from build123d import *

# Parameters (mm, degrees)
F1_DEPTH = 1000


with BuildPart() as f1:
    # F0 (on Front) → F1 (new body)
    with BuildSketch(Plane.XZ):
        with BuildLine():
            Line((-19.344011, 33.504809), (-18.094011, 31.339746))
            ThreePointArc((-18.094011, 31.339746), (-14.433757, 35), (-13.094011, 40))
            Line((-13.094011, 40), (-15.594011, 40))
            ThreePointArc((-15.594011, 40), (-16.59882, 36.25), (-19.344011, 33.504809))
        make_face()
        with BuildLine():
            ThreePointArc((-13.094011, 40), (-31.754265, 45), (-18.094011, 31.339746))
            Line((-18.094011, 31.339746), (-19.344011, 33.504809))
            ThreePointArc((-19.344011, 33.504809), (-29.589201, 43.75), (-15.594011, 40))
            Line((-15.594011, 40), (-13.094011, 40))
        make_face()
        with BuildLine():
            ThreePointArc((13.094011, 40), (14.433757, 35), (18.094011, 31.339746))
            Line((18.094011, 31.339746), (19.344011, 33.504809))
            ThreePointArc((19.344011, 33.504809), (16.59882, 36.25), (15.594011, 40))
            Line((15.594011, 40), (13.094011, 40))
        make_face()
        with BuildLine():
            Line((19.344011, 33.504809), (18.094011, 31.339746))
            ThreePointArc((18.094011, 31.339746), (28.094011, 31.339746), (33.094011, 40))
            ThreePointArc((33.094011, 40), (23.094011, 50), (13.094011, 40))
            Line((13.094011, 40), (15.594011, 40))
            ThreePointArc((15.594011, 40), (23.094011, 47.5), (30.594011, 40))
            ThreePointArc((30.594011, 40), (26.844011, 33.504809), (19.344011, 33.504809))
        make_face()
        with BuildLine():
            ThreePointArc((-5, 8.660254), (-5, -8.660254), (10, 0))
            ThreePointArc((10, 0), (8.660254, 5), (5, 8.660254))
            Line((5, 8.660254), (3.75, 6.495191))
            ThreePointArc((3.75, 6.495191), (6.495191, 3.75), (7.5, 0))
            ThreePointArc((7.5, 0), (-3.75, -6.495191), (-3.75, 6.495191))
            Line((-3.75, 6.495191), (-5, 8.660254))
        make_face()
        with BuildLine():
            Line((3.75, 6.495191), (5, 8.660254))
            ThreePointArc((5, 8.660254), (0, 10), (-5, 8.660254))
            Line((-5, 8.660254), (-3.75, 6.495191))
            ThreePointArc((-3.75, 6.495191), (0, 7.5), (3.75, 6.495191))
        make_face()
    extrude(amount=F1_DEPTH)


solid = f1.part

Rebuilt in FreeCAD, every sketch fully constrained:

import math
import FreeCAD as App
import Part
import Sketcher

V = App.Vector

doc = App.newDocument("Part")
body = doc.addObject("PartDesign::Body", "Body")
body.AllowCompound = True

# Sketch on XZ plane
sketch1 = body.newObject("Sketcher::SketchObject", "Sketch")
sketch1.AttachmentSupport = (doc.getObject("XZ_Plane"), [""])
sketch1.MapMode = "FlatFace"
sketch1.addGeometry(Part.ArcOfCircle(Part.Circle(V(-23, 40, 0), V(0, 0, 1), 10), math.radians(-60), math.radians(0)), False)
sketch1.addGeometry(Part.ArcOfCircle(Part.Circle(V(-23, 40, 0), V(0, 0, 1), 10), math.radians(0), math.radians(300)), False)
sketch1.addGeometry(Part.ArcOfCircle(Part.Circle(V(-23, 40, 0), V(0, 0, 1), 7), math.radians(-60), math.radians(0)), False)
sketch1.addGeometry(Part.ArcOfCircle(Part.Circle(V(-23, 40, 0), V(0, 0, 1), 7), math.radians(0), math.radians(300)), False)
sketch1.addGeometry(Part.ArcOfCircle(Part.Circle(V(23, 40, 0), V(0, 0, 1), 10), math.radians(-180), math.radians(-120)), False)
sketch1.addGeometry(Part.ArcOfCircle(Part.Circle(V(23, 40, 0), V(0, 0, 1), 10), math.radians(-120), math.radians(0)), False)
sketch1.addGeometry(Part.ArcOfCircle(Part.Circle(V(23, 40, 0), V(0, 0, 1), 10), math.radians(0), math.radians(180)), False)
sketch1.addGeometry(Part.ArcOfCircle(Part.Circle(V(23, 40, 0), V(0, 0, 1), 7), math.radians(180), math.radians(240)), False)
sketch1.addGeometry(Part.ArcOfCircle(Part.Circle(V(23, 40, 0), V(0, 0, 1), 8), math.radians(0), math.radians(180)), False)
sketch1.addGeometry(Part.ArcOfCircle(Part.Circle(V(23, 40, 0), V(0, 0, 1), 8), math.radians(-120), math.radians(0)), False)
sketch1.addGeometry(Part.ArcOfCircle(Part.Circle(V(0, 0, 0), V(0, 0, 1), 10), math.radians(120), math.radians(360)), False)
sketch1.addGeometry(Part.ArcOfCircle(Part.Circle(V(0, 0, 0), V(0, 0, 1), 10), math.radians(0), math.radians(60)), False)
sketch1.addGeometry(Part.ArcOfCircle(Part.Circle(V(0, 0, 0), V(0, 0, 1), 10), math.radians(60), math.radians(120)), False)
sketch1.addGeometry(Part.ArcOfCircle(Part.Circle(V(0, 0, 0), V(0, 0, 1), 7), math.radians(0), math.radians(60)), False)
sketch1.addGeometry(Part.ArcOfCircle(Part.Circle(V(0, 0, 0), V(0, 0, 1), 8), math.radians(120), math.radians(360)), False)
sketch1.addGeometry(Part.ArcOfCircle(Part.Circle(V(0, 0, 0), V(0, 0, 1), 8), math.radians(60), math.radians(120)), False)
sketch1.addConstraint(Sketcher.Constraint("Tangent", 0, 1, 1, 2))
sketch1.addConstraint(Sketcher.Constraint("Coincident", 1, 1, 0, 2))
sketch1.addConstraint(Sketcher.Constraint("Tangent", 2, 1, 3, 2))
sketch1.addConstraint(Sketcher.Constraint("Coincident", 3, 1, 2, 2))
sketch1.addConstraint(Sketcher.Constraint("Tangent", 4, 2, 5, 1))
sketch1.addConstraint(Sketcher.Constraint("Tangent", 5, 2, 6, 1))
sketch1.addConstraint(Sketcher.Constraint("Tangent", 6, 2, 4, 1))
sketch1.addConstraint(Sketcher.Constraint("Tangent", 7, 1, 8, 2))
sketch1.addConstraint(Sketcher.Constraint("Tangent", 8, 1, 9, 2))
sketch1.addConstraint(Sketcher.Constraint("Tangent", 9, 1, 7, 2))
sketch1.addConstraint(Sketcher.Constraint("Tangent", 10, 2, 11, 1))
sketch1.addConstraint(Sketcher.Constraint("Tangent", 11, 2, 12, 1))
sketch1.addConstraint(Sketcher.Constraint("Tangent", 12, 2, 10, 1))
sketch1.addConstraint(Sketcher.Constraint("Tangent", 13, 1, 14, 2))
sketch1.addConstraint(Sketcher.Constraint("Tangent", 14, 1, 15, 2))
sketch1.addConstraint(Sketcher.Constraint("Tangent", 15, 1, 13, 2))
sketch1.addConstraint(Sketcher.Constraint("Coincident", 10, 3, -1, 1))
sketch1.addConstraint(Sketcher.Constraint("Coincident", 13, 3, -1, 1))
sketch1.addConstraint(Sketcher.Constraint("Coincident", 2, 3, 0, 3))
sketch1.addConstraint(Sketcher.Constraint("Coincident", 7, 3, 4, 3))
sketch1.addConstraint(Sketcher.Constraint("Equal", 1, 4))
sketch1.addConstraint(Sketcher.Constraint("Equal", 3, 7))
sketch1.addConstraint(Sketcher.Constraint("Equal", 6, 10))
sketch1.addConstraint(Sketcher.Constraint("Equal", 9, 13))
sketch1.addConstraint(Sketcher.Constraint("Symmetric", 0, 3, 4, 3, -2))
sketch1.addConstraint(Sketcher.Constraint("PointOnObject", 10, 2, -1))
sketch1.addConstraint(Sketcher.Constraint("PointOnObject", 13, 1, -1))
sketch1.addConstraint(Sketcher.Constraint("Horizontal", 9, 3, 1, 1))
sketch1.addConstraint(Sketcher.Constraint("Horizontal", 1, 1, 3, 1))
sketch1.addConstraint(Sketcher.Constraint("Horizontal", 0, 1, 4, 2))
sketch1.addConstraint(Sketcher.Constraint("Horizontal", 3, 1, 5, 2))
sketch1.addConstraint(Sketcher.Constraint("Horizontal", 5, 2, 6, 2))
sketch1.addConstraint(Sketcher.Constraint("Horizontal", 6, 2, 7, 1))
sketch1.addConstraint(Sketcher.Constraint("Horizontal", 7, 1, 8, 1))
sketch1.addConstraint(Sketcher.Constraint("Horizontal", 2, 1, 9, 1))
sketch1.addConstraint(Sketcher.Constraint("Horizontal", 11, 2, 12, 2))
sketch1.addConstraint(Sketcher.Constraint("Horizontal", 14, 1, 15, 1))
sketch1.addConstraint(Sketcher.Constraint("Radius", 0, 10.0))
sketch1.addConstraint(Sketcher.Constraint("Radius", 2, 7.499999))
sketch1.addConstraint(Sketcher.Constraint("DistanceY", -1, 1, 0, 3, 40.0))
sketch1.addConstraint(Sketcher.Constraint("DistanceX", -1, 1, 11, 2, 5.0))
sketch1.addConstraint(Sketcher.Constraint("DistanceX", 2, 3, 0, 1, 4.999999))
sketch1.addConstraint(Sketcher.Constraint("DistanceX", 14, 1, 15, 1, 7.5))
sketch1.addConstraint(Sketcher.Constraint("DistanceX", 2, 1, 0, 1, 1.25))
sketch1.addConstraint(Sketcher.Constraint("DistanceX", 0, 3, -1, 1, 23.094011))
pad1 = body.newObject("PartDesign::Pad", "Pad")
pad1.Profile = sketch1
pad1.Length = 1000

doc.recompute()
